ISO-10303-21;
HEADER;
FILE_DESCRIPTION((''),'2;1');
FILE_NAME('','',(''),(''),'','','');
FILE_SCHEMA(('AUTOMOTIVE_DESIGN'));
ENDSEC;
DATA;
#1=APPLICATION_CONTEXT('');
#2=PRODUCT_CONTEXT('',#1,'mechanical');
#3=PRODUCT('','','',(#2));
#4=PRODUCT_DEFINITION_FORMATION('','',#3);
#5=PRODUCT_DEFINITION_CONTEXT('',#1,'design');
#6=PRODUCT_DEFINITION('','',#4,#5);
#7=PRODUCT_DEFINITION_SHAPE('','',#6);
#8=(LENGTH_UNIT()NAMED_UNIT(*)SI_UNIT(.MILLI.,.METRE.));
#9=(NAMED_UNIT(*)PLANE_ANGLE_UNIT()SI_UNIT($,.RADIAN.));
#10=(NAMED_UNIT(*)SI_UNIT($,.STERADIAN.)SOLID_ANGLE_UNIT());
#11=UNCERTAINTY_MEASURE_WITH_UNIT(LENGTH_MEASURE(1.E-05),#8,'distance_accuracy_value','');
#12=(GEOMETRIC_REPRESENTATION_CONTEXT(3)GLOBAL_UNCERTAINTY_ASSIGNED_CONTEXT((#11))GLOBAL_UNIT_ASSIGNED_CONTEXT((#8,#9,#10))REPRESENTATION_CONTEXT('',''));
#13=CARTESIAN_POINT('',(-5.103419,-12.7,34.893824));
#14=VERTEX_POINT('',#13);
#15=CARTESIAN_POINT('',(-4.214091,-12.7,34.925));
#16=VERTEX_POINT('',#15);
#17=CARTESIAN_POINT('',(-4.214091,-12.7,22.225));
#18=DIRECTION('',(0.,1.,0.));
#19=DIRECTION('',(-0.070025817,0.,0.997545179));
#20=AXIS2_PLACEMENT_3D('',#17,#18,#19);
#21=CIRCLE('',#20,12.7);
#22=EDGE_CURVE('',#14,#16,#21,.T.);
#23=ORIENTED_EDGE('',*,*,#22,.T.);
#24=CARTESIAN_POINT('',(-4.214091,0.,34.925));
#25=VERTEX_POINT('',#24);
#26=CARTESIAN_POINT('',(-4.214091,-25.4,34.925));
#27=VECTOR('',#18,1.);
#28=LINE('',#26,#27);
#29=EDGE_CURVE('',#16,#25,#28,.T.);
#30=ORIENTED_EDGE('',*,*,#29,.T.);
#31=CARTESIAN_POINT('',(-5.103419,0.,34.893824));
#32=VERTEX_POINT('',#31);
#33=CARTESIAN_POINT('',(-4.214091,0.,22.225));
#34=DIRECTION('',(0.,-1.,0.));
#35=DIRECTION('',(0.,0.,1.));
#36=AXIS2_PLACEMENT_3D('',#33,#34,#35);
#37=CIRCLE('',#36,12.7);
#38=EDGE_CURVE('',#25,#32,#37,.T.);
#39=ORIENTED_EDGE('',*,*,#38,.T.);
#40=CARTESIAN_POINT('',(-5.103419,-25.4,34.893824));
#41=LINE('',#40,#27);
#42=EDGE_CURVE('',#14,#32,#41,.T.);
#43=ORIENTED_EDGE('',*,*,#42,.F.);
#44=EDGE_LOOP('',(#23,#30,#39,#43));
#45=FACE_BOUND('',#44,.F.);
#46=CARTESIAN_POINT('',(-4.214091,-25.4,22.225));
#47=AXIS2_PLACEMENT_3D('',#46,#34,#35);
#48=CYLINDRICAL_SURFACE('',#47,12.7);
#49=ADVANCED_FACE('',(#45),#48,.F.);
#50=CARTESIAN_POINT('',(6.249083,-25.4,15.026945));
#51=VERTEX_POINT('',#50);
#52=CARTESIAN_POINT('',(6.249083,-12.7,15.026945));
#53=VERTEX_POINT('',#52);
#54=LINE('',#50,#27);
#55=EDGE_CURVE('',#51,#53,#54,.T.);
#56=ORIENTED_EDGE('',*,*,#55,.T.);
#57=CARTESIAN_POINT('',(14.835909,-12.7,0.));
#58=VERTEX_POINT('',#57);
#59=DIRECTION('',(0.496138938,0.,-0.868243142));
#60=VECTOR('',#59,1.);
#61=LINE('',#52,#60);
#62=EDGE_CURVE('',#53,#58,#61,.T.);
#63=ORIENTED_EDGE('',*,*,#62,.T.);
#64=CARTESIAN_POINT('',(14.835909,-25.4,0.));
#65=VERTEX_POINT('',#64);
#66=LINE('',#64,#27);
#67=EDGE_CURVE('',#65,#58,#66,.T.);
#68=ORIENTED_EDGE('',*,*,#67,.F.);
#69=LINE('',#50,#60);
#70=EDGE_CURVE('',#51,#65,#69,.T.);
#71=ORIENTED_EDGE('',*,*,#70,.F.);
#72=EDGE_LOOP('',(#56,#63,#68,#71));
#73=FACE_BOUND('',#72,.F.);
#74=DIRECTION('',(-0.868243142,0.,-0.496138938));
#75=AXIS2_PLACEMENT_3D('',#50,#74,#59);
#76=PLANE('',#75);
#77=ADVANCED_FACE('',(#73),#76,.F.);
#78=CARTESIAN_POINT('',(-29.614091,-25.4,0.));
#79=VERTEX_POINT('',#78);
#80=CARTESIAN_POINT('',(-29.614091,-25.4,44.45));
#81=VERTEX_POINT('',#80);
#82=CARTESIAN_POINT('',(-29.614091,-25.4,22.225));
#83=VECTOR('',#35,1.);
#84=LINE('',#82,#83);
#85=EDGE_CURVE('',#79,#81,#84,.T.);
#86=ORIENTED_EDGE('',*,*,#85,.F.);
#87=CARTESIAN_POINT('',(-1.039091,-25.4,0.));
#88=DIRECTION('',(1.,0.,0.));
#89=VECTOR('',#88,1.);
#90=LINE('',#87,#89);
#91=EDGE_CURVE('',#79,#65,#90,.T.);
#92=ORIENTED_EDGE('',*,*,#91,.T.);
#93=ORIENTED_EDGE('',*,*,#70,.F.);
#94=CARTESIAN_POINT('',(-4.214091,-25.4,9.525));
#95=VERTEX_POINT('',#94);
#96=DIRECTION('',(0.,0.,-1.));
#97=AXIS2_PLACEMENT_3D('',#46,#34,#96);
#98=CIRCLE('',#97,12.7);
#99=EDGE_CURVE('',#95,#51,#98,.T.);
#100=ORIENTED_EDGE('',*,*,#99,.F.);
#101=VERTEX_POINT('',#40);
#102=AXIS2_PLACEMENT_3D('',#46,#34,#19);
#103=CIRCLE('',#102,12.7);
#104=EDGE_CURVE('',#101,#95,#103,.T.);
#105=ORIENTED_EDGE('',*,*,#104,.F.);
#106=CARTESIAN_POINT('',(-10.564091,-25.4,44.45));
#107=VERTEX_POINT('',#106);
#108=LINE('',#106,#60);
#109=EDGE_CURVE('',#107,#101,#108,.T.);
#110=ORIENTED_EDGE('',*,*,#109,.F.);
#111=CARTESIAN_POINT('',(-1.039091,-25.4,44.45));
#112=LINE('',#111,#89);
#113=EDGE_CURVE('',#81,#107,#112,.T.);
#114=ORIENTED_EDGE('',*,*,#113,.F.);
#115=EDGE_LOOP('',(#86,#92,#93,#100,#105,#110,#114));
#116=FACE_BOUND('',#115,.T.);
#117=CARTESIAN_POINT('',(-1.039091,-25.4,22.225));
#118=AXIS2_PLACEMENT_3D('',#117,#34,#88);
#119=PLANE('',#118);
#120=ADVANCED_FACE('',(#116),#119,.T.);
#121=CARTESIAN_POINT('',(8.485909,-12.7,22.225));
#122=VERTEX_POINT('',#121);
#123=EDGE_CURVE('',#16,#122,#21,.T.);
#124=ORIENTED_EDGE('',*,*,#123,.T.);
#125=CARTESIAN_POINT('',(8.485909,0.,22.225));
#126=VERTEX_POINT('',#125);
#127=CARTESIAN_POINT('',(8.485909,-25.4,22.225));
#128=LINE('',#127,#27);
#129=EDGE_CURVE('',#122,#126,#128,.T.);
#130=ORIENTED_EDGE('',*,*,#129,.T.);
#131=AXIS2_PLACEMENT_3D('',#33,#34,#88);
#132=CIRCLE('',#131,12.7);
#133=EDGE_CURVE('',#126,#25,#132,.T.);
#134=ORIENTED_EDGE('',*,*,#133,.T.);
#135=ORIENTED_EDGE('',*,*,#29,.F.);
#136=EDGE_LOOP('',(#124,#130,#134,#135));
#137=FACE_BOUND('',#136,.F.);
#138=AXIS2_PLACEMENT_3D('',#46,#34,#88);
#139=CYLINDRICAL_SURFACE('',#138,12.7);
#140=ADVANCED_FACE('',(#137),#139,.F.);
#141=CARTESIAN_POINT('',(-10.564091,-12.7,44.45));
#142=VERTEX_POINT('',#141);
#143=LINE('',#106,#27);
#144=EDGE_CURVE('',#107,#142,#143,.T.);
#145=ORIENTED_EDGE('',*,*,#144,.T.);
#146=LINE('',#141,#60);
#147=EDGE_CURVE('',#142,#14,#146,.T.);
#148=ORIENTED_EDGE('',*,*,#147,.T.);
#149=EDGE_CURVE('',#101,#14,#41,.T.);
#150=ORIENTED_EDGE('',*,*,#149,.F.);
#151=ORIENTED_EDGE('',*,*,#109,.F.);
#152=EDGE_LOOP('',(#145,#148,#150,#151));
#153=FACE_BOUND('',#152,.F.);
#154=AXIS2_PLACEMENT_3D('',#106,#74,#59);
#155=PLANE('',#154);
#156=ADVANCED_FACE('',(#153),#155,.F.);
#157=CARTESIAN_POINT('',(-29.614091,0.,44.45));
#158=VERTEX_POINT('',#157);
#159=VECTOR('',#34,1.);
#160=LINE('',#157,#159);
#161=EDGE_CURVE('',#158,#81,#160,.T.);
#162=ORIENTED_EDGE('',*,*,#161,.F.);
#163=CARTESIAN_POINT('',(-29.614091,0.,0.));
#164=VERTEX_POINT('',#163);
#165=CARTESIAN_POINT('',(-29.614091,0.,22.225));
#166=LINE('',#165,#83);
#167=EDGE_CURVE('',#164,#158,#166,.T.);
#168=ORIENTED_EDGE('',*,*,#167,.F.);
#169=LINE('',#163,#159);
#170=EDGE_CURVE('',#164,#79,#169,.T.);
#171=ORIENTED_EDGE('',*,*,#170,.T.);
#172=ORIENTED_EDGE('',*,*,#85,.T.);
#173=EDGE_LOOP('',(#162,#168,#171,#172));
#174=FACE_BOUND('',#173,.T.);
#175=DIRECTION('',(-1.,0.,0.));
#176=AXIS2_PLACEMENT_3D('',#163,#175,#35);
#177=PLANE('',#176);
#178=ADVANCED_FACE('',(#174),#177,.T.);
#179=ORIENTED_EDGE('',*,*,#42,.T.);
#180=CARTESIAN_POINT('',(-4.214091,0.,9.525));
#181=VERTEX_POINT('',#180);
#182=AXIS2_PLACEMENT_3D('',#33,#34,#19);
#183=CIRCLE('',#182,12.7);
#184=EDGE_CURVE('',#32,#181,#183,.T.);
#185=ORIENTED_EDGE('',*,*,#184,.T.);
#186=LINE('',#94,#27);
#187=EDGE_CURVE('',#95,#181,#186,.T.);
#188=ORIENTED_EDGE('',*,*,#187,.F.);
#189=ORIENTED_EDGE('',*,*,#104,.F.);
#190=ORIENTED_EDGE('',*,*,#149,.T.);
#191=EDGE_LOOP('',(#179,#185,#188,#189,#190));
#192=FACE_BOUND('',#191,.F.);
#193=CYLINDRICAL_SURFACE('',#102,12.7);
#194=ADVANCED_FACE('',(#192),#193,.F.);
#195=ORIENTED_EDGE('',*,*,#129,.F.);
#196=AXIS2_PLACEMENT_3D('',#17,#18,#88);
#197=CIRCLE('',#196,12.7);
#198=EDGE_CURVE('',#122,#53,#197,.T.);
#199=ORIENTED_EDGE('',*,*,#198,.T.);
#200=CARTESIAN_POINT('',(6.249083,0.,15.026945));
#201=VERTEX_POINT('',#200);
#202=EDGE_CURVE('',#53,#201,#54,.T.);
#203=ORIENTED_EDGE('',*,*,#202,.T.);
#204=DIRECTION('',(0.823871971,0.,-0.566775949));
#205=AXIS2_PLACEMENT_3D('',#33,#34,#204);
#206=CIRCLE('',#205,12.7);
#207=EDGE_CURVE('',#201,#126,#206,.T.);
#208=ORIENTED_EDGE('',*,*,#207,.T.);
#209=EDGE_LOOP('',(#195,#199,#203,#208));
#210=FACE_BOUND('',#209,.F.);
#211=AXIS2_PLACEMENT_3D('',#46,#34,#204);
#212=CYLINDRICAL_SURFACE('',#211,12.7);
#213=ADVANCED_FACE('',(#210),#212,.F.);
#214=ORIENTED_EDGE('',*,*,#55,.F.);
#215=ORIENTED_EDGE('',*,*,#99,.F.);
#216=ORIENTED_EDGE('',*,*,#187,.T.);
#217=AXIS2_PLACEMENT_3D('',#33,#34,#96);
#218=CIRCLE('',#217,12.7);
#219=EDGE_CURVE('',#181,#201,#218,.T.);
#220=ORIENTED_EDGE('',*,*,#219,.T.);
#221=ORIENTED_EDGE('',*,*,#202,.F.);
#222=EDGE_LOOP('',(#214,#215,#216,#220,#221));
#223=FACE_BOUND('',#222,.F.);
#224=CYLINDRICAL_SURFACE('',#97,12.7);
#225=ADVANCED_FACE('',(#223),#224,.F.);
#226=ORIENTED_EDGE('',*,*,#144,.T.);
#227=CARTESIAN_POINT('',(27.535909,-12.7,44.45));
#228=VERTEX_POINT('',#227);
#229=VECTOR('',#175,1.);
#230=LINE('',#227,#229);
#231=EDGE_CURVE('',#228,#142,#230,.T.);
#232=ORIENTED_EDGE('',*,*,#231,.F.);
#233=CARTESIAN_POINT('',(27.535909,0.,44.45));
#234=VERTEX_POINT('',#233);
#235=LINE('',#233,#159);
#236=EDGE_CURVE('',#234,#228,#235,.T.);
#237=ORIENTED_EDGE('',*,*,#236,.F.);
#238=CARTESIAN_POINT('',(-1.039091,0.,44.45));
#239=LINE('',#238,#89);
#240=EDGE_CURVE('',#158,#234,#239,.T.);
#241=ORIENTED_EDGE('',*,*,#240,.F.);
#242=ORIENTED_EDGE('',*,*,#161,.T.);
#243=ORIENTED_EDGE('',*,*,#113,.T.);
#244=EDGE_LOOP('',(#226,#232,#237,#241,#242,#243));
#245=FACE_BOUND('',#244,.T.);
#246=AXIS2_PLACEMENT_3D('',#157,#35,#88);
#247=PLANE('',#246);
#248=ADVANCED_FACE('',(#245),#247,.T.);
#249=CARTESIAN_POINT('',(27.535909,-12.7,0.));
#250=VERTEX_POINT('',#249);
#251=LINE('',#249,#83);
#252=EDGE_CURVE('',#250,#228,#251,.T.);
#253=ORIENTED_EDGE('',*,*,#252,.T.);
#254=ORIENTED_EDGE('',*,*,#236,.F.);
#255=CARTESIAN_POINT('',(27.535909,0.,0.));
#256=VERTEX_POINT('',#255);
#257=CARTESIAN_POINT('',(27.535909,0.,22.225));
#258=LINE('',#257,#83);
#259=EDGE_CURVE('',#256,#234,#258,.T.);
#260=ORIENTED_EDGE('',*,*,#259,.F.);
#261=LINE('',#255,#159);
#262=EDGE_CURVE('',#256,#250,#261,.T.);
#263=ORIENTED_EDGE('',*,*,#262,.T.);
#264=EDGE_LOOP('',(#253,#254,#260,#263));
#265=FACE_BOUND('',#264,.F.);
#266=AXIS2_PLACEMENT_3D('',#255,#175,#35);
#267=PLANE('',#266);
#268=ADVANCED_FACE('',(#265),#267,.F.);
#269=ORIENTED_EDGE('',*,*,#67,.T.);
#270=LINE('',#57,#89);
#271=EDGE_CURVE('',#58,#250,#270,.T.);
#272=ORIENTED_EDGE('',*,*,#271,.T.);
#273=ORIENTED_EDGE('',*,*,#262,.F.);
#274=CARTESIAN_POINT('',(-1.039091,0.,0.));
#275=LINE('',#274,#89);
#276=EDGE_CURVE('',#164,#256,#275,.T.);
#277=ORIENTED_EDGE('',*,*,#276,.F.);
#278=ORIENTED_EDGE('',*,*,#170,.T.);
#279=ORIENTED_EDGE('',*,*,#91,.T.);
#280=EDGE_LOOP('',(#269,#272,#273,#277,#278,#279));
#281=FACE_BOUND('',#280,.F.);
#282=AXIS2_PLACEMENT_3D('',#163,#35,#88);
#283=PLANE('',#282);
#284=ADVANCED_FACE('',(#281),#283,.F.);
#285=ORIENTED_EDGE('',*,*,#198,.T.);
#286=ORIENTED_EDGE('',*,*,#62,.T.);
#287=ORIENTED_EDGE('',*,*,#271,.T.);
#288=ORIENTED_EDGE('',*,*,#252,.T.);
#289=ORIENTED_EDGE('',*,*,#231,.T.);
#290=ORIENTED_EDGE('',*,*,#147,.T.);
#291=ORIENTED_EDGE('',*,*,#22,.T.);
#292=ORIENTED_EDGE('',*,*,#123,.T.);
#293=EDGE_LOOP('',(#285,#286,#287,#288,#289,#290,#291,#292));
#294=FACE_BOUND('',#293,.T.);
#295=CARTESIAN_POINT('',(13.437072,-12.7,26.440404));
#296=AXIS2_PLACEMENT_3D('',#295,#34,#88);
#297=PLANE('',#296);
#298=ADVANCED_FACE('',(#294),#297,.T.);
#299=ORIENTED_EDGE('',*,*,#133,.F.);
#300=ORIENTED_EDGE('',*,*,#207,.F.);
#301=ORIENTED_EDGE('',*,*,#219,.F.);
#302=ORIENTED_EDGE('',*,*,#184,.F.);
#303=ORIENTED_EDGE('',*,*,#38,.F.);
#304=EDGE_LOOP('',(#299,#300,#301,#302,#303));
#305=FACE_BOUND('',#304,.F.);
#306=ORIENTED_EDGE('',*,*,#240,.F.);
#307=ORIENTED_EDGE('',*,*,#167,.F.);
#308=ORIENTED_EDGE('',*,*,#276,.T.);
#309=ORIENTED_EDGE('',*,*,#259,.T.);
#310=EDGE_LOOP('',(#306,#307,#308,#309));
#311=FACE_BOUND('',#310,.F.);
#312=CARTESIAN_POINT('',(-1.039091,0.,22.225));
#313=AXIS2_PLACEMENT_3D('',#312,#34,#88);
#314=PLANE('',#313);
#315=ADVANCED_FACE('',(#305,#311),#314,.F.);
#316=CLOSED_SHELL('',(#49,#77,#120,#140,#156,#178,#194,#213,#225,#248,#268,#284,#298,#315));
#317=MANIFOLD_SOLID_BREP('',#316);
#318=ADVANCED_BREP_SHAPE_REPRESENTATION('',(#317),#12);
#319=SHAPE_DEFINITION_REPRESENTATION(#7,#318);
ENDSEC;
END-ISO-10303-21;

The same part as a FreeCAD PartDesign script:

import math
import FreeCAD as App
import Part
import Sketcher
Q = App.Units.Quantity


def add_polygon(sketch, points):
    """Adds a closed chain of lines whose ends are joined by coincident constraints."""
    first, n = sketch.GeometryCount, len(points)
    for a, b in zip(points, points[1:] + points[:1]):
        sketch.addGeometry(Part.LineSegment(App.Vector(*a, 0), App.Vector(*b, 0)), False)
    for i in range(n):
        sketch.addConstraint(Sketcher.Constraint("Coincident", first + i, 2, first + (i + 1) % n, 1))

doc = App.newDocument("Part")
params = doc.addObject("Spreadsheet::Sheet", "Params")
for row, (alias, value) in enumerate([
    ("sketch1_width", "2.25 in"),
    ("sketch1_height", "1.75 in"),
    ("pad1_length", "1 in"),
    ("sketch2_radius", "0.5 in"),
    ("sketch3_radius", "0.5 in"),
    ("sketch3_width", "0.5 in"),
    ("sketch3_width2", "1.5 in"),
    ("sketch3_height", "1.75 in"),
    ("pocket2_length", "0.5 in"),
], start=1):
    params.set(f"A{row}", alias)
    params.set(f"B{row}", "=" + value)
    params.setAlias(f"B{row}", alias)

body = doc.addObject("PartDesign::Body", "Body")

# Sketch on XZ plane
sketch1 = body.newObject("Sketcher::SketchObject", "Sketch")
sketch1.AttachmentSupport = (doc.getObject("XZ_Plane"), [""])
sketch1.MapMode = "FlatFace"
add_polygon(sketch1, [(-29.614091, 44.45), (-29.614091, 0), (27.535909, 0), (27.535909, 44.45)])  # lines 0-3
sketch1.addConstraint(Sketcher.Constraint("Vertical", 0))
sketch1.addConstraint(Sketcher.Constraint("Horizontal", 1))
sketch1.addConstraint(Sketcher.Constraint("Vertical", 2))
sketch1.addConstraint(Sketcher.Constraint("Horizontal", 3))
sketch1.addConstraint(Sketcher.Constraint("PointOnObject", 0, 2, -1))
sketch1.addConstraint(Sketcher.Constraint("DistanceX", 1, 1, 1, 2, Q("2.25 in")))
sketch1.addConstraint(Sketcher.Constraint("DistanceY", 0, 2, 0, 1, Q("1.75 in")))
sketch1.addConstraint(Sketcher.Constraint("DistanceX", 0, 2, -1, 1, 29.614091))
sketch1.setExpression("Constraints[9]", "Params.sketch1_width")
sketch1.setExpression("Constraints[10]", "Params.sketch1_height")
pad1 = body.newObject("PartDesign::Pad", "Pad")
pad1.Profile = sketch1
pad1.setExpression("Length", "Params.pad1_length")

# Sketch on XZ plane
sketch2 = body.newObject("Sketcher::SketchObject", "Sketch001")
sketch2.AttachmentSupport = (doc.getObject("XZ_Plane"), [""])
sketch2.MapMode = "FlatFace"
sketch2.AttachmentOffset = App.Placement(App.Vector(0, 0, 1 * 25.4), App.Rotation())
sketch2.addGeometry(Part.ArcOfCircle(Part.Circle(App.Vector(-4.214091, 22.225, 0), App.Vector(0, 0, 1), 12.7), math.radians(90), math.radians(94.01547)), False)
sketch2.addGeometry(Part.ArcOfCircle(Part.Circle(App.Vector(-4.214091, 22.225, 0), App.Vector(0, 0, 1), 12.7), math.radians(94.01547), math.radians(270)), False)
sketch2.addGeometry(Part.ArcOfCircle(Part.Circle(App.Vector(-4.214091, 22.225, 0), App.Vector(0, 0, 1), 12.7), math.radians(-90), math.radians(-34.525707)), False)
sketch2.addGeometry(Part.ArcOfCircle(Part.Circle(App.Vector(-4.214091, 22.225, 0), App.Vector(0, 0, 1), 12.7), math.radians(-34.525707), math.radians(0)), False)
sketch2.addGeometry(Part.ArcOfCircle(Part.Circle(App.Vector(-4.214091, 22.225, 0), App.Vector(0, 0, 1), 12.7), math.radians(0), math.radians(90)), False)
sketch2.addConstraint(Sketcher.Constraint("Tangent", 0, 2, 1, 1))
sketch2.addConstraint(Sketcher.Constraint("Tangent", 1, 2, 2, 1))
sketch2.addConstraint(Sketcher.Constraint("Tangent", 2, 2, 3, 1))
sketch2.addConstraint(Sketcher.Constraint("Tangent", 3, 2, 4, 1))
sketch2.addConstraint(Sketcher.Constraint("Tangent", 4, 2, 0, 1))
sketch2.addConstraint(Sketcher.Constraint("Coincident", 2, 3, 0, 3))
sketch2.addConstraint(Sketcher.Constraint("Horizontal", 4, 3, 3, 2))
sketch2.addConstraint(Sketcher.Constraint("Vertical", 4, 3, 1, 2))
sketch2.addConstraint(Sketcher.Constraint("Vertical", 1, 2, 4, 2))
sketch2.addConstraint(Sketcher.Constraint("Radius", 0, Q("0.5 in")))
sketch2.addConstraint(Sketcher.Constraint("DistanceY", -1, 1, 0, 3, Q("0.875 in")))
sketch2.addConstraint(Sketcher.Constraint("DistanceX", 0, 3, -1, 1, 4.214091))
sketch2.addConstraint(Sketcher.Constraint("DistanceX", 0, 2, -1, 1, 5.103419))
sketch2.addConstraint(Sketcher.Constraint("DistanceX", -1, 1, 2, 2, 6.249083))
sketch2.setExpression("Constraints[9]", "Params.sketch2_radius")
pocket1 = body.newObject("PartDesign::Pocket", "Pocket")
pocket1.Profile = sketch2
pocket1.Type = "ThroughAll"

# Sketch on XZ plane
sketch3 = body.newObject("Sketcher::SketchObject", "Sketch002")
sketch3.AttachmentSupport = (doc.getObject("XZ_Plane"), [""])
sketch3.MapMode = "FlatFace"
sketch3.AttachmentOffset = App.Placement(App.Vector(0, 0, 1 * 25.4), App.Rotation())
sketch3.addGeometry(Part.LineSegment(App.Vector(6.249083, 15.026945, 0), App.Vector(14.835909, 0, 0)), False)
sketch3.addGeometry(Part.LineSegment(App.Vector(14.835909, 0, 0), App.Vector(27.535909, 0, 0)), False)
sketch3.addGeometry(Part.LineSegment(App.Vector(27.535909, 0, 0), App.Vector(27.535909, 44.45, 0)), False)
sketch3.addGeometry(Part.LineSegment(App.Vector(27.535909, 44.45, 0), App.Vector(-10.564091, 44.45, 0)), False)
sketch3.addGeometry(Part.LineSegment(App.Vector(-10.564091, 44.45, 0), App.Vector(-5.103419, 34.893824, 0)), False)
sketch3.addGeometry(Part.ArcOfCircle(Part.Circle(App.Vector(-4.214091, 22.225, 0), App.Vector(0, 0, 1), 12.7), math.radians(0), math.radians(94.01547)), False)
sketch3.addGeometry(Part.ArcOfCircle(Part.Circle(App.Vector(-4.214091, 22.225, 0), App.Vector(0, 0, 1), 12.7), math.radians(-34.525707), math.radians(0)), False)
sketch3.addConstraint(Sketcher.Constraint("Coincident", 0, 2, 1, 1))
sketch3.addConstraint(Sketcher.Constraint("Coincident", 1, 2, 2, 1))
sketch3.addConstraint(Sketcher.Constraint("Coincident", 2, 2, 3, 1))
sketch3.addConstraint(Sketcher.Constraint("Coincident", 3, 2, 4, 1))
sketch3.addConstraint(Sketcher.Constraint("Coincident", 4, 2, 5, 2))
sketch3.addConstraint(Sketcher.Constraint("Tangent", 5, 1, 6, 2))
sketch3.addConstraint(Sketcher.Constraint("Coincident", 6, 1, 0, 1))
sketch3.addConstraint(Sketcher.Constraint("Horizontal", 1))
sketch3.addConstraint(Sketcher.Constraint("Vertical", 2))
sketch3.addConstraint(Sketcher.Constraint("Horizontal", 3))
sketch3.addConstraint(Sketcher.Constraint("Equal", 5, 6))
sketch3.addConstraint(Sketcher.Constraint("PointOnObject", 0, 2, -1))
sketch3.addConstraint(Sketcher.Constraint("Parallel", 0, 4))
sketch3.addConstraint(Sketcher.Constraint("Horizontal", 6, 3, 5, 1))
sketch3.addConstraint(Sketcher.Constraint("Radius", 5, Q("0.5 in")))
sketch3.addConstraint(Sketcher.Constraint("DistanceX", 1, 1, 1, 2, Q("0.5 in")))
sketch3.addConstraint(Sketcher.Constraint("DistanceX", 3, 2, 3, 1, Q("1.5 in")))
sketch3.addConstraint(Sketcher.Constraint("DistanceY", 2, 1, 2, 2, Q("1.75 in")))
sketch3.addConstraint(Sketcher.Constraint("DistanceX", 6, 3, 0, 2, Q("0.75 in")))
sketch3.addConstraint(Sketcher.Constraint("DistanceY", -1, 1, 5, 3, Q("0.875 in")))
sketch3.addConstraint(Sketcher.Constraint("Distance", 0, 17.307301))
sketch3.addConstraint(Sketcher.Constraint("DistanceX", 5, 3, -1, 1, 4.214091))
sketch3.setExpression("Constraints[14]", "Params.sketch3_radius")
sketch3.setExpression("Constraints[15]", "Params.sketch3_width")
sketch3.setExpression("Constraints[16]", "Params.sketch3_width2")
sketch3.setExpression("Constraints[17]", "Params.sketch3_height")
pocket2 = body.newObject("PartDesign::Pocket", "Pocket001")
pocket2.Profile = sketch3
pocket2.setExpression("Length", "Params.pocket2_length")

doc.recompute()
